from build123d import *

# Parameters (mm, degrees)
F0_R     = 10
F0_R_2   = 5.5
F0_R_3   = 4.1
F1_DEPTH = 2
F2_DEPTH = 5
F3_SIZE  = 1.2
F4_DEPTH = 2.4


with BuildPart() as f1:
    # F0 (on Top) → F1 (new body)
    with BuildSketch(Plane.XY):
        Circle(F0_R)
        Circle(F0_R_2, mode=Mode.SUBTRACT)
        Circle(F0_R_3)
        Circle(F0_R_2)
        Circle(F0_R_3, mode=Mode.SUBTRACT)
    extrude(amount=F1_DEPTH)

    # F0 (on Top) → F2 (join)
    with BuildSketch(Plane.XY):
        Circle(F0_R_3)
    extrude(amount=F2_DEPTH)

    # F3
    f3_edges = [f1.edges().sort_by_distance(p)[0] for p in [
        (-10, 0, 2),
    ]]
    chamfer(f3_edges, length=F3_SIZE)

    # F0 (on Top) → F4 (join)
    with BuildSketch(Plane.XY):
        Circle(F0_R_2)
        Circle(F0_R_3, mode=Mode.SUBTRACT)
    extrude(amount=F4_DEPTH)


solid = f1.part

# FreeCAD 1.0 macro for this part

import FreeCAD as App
import Part
import Sketcher
from FreeCAD import Vector


def edges_at(feature, points):
    """Names of the edges that pass closest to the given points."""
    edges = feature.Shape.Edges
    near = lambda p: min(range(len(edges)), key=lambda i: edges[i].distToShape(Part.Vertex(*p))[0])
    return sorted({f"Edge{near(p) + 1}" for p in points})

doc = App.newDocument("Part")
params = doc.addObject("Spreadsheet::Sheet", "Params")
for row, (alias, value) in enumerate([
    ("sketch1_diameter", "20 mm"),
    ("sketch1_diameter2", "8.2 mm"),
    ("pad1_length", "2 mm"),
    ("sketch2_diameter", "8.2 mm"),
    ("pad2_length", "5 mm"),
    ("chamfer_size", "1.2 mm"),
    ("sketch3_diameter", "11 mm"),
    ("sketch3_diameter2", "8.2 mm"),
    ("pad3_length", "2.4 mm"),
], start=1):
    params.set(f"A{row}", alias)
    params.set(f"B{row}", "=" + value)
    params.setAlias(f"B{row}", alias)

body = doc.addObject("PartDesign::Body", "Body")

# Sketch on XY plane
sketch1 = body.newObject("Sketcher::SketchObject", "Sketch")
sketch1.AttachmentSupport = (doc.getObject("XY_Plane"), [""])
sketch1.MapMode = "FlatFace"
sketch1.addGeometry(Part.Circle(Vector(0, 0, 0), Vector(0, 0, 1), 10), False)
sketch1.addGeometry(Part.Circle(Vector(0, 0, 0), Vector(0, 0, 1), 4.1), False)
sketch1.addConstraint(Sketcher.Constraint("Coincident", 0, 3, -1, 1))
sketch1.addConstraint(Sketcher.Constraint("Coincident", 1, 3, -1, 1))
sketch1.addConstraint(Sketcher.Constraint("Diameter", 0, 20.0))
sketch1.addConstraint(Sketcher.Constraint("Diameter", 1, 8.2))
sketch1.setExpression("Constraints[2]", "Params.sketch1_diameter")
sketch1.setExpression("Constraints[3]", "Params.sketch1_diameter2")
pad1 = body.newObject("PartDesign::Pad", "Pad")
pad1.Profile = sketch1
pad1.setExpression("Length", "Params.pad1_length")

# Sketch on XY plane
sketch2 = body.newObject("Sketcher::SketchObject", "Sketch001")
sketch2.AttachmentSupport = (doc.getObject("XY_Plane"), [""])
sketch2.MapMode = "FlatFace"
sketch2.addGeometry(Part.Circle(Vector(0, 0, 0), Vector(0, 0, 1), 4.1), False)
sketch2.addConstraint(Sketcher.Constraint("Coincident", 0, 3, -1, 1))
sketch2.addConstraint(Sketcher.Constraint("Diameter", 0, 8.2))
sketch2.setExpression("Constraints[1]", "Params.sketch2_diameter")
pad2 = body.newObject("PartDesign::Pad", "Pad001")
pad2.Profile = sketch2
pad2.setExpression("Length", "Params.pad2_length")
doc.recompute()

chamfer = body.newObject("PartDesign::Chamfer", "Chamfer")
chamfer.Base = (pad2, edges_at(pad2, [(-10, 0, 2)]))
chamfer.setExpression("Size", "Params.chamfer_size")

# Sketch on XY plane
sketch3 = body.newObject("Sketcher::SketchObject", "Sketch002")
sketch3.AttachmentSupport = (doc.getObject("XY_Plane"), [""])
sketch3.MapMode = "FlatFace"
sketch3.addGeometry(Part.Circle(Vector(0, 0, 0), Vector(0, 0, 1), 5.5), False)
sketch3.addGeometry(Part.Circle(Vector(0, 0, 0), Vector(0, 0, 1), 4.1), False)
sketch3.addConstraint(Sketcher.Constraint("Coincident", 0, 3, -1, 1))
sketch3.addConstraint(Sketcher.Constraint("Coincident", 1, 3, -1, 1))
sketch3.addConstraint(Sketcher.Constraint("Diameter", 0, 11.0))
sketch3.addConstraint(Sketcher.Constraint("Diameter", 1, 8.2))
sketch3.setExpression("Constraints[2]", "Params.sketch3_diameter")
sketch3.setExpression("Constraints[3]", "Params.sketch3_diameter2")
pad3 = body.newObject("PartDesign::Pad", "Pad002")
pad3.Profile = sketch3
pad3.setExpression("Length", "Params.pad3_length")

doc.recompute()
